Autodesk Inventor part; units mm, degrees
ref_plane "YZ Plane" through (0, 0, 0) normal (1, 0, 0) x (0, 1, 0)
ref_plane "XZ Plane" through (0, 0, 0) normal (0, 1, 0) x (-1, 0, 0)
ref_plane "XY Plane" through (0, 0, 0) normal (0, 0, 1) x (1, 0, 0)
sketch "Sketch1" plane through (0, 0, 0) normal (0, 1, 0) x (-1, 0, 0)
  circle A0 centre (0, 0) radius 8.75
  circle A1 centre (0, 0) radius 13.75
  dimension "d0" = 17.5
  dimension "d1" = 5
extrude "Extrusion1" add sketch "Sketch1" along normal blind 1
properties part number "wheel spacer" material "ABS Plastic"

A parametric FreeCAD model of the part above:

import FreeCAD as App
import Part
import Sketcher
from FreeCAD import Vector

doc = App.newDocument("Part")
params = doc.addObject("Spreadsheet::Sheet", "Params")
for row, (alias, value) in enumerate([
    ("sketch1_diameter", "17.5 mm"),
    ("sketch1_diameter2", "27.5 mm"),
    ("pad1_length", "1 mm"),
], start=1):
    params.set(f"A{row}", alias)
    params.set(f"B{row}", "=" + value)
    params.setAlias(f"B{row}", alias)

body = doc.addObject("PartDesign::Body", "Body")

# Sketch on XZ plane
sketch1 = body.newObject("Sketcher::SketchObject", "Sketch")
sketch1.AttachmentSupport = (doc.getObject("XZ_Plane"), [""])
sketch1.MapMode = "FlatFace"
sketch1.addGeometry([
    Part.Circle(Vector(0, 0, 0), Vector(0, 0, 1), 14),
    Part.Circle(Vector(0, 0, 0), Vector(0, 0, 1), 9),
], False)
sketch1.addConstraint([
    Sketcher.Constraint("Coincident", 0, 3, -1, 1),
    Sketcher.Constraint("Coincident", 1, 3, -1, 1),
    Sketcher.Constraint("Diameter", 1, 17.5),
    Sketcher.Constraint("Diameter", 0, 27.5),
])
sketch1.setExpression("Constraints[2]", "Params.sketch1_diameter")
sketch1.setExpression("Constraints[3]", "Params.sketch1_diameter2")
pad1 = body.newObject("PartDesign::Pad", "Pad")
pad1.Profile = sketch1
pad1.setExpression("Length", "Params.pad1_length")
pad1.Reversed = True

doc.recompute()
